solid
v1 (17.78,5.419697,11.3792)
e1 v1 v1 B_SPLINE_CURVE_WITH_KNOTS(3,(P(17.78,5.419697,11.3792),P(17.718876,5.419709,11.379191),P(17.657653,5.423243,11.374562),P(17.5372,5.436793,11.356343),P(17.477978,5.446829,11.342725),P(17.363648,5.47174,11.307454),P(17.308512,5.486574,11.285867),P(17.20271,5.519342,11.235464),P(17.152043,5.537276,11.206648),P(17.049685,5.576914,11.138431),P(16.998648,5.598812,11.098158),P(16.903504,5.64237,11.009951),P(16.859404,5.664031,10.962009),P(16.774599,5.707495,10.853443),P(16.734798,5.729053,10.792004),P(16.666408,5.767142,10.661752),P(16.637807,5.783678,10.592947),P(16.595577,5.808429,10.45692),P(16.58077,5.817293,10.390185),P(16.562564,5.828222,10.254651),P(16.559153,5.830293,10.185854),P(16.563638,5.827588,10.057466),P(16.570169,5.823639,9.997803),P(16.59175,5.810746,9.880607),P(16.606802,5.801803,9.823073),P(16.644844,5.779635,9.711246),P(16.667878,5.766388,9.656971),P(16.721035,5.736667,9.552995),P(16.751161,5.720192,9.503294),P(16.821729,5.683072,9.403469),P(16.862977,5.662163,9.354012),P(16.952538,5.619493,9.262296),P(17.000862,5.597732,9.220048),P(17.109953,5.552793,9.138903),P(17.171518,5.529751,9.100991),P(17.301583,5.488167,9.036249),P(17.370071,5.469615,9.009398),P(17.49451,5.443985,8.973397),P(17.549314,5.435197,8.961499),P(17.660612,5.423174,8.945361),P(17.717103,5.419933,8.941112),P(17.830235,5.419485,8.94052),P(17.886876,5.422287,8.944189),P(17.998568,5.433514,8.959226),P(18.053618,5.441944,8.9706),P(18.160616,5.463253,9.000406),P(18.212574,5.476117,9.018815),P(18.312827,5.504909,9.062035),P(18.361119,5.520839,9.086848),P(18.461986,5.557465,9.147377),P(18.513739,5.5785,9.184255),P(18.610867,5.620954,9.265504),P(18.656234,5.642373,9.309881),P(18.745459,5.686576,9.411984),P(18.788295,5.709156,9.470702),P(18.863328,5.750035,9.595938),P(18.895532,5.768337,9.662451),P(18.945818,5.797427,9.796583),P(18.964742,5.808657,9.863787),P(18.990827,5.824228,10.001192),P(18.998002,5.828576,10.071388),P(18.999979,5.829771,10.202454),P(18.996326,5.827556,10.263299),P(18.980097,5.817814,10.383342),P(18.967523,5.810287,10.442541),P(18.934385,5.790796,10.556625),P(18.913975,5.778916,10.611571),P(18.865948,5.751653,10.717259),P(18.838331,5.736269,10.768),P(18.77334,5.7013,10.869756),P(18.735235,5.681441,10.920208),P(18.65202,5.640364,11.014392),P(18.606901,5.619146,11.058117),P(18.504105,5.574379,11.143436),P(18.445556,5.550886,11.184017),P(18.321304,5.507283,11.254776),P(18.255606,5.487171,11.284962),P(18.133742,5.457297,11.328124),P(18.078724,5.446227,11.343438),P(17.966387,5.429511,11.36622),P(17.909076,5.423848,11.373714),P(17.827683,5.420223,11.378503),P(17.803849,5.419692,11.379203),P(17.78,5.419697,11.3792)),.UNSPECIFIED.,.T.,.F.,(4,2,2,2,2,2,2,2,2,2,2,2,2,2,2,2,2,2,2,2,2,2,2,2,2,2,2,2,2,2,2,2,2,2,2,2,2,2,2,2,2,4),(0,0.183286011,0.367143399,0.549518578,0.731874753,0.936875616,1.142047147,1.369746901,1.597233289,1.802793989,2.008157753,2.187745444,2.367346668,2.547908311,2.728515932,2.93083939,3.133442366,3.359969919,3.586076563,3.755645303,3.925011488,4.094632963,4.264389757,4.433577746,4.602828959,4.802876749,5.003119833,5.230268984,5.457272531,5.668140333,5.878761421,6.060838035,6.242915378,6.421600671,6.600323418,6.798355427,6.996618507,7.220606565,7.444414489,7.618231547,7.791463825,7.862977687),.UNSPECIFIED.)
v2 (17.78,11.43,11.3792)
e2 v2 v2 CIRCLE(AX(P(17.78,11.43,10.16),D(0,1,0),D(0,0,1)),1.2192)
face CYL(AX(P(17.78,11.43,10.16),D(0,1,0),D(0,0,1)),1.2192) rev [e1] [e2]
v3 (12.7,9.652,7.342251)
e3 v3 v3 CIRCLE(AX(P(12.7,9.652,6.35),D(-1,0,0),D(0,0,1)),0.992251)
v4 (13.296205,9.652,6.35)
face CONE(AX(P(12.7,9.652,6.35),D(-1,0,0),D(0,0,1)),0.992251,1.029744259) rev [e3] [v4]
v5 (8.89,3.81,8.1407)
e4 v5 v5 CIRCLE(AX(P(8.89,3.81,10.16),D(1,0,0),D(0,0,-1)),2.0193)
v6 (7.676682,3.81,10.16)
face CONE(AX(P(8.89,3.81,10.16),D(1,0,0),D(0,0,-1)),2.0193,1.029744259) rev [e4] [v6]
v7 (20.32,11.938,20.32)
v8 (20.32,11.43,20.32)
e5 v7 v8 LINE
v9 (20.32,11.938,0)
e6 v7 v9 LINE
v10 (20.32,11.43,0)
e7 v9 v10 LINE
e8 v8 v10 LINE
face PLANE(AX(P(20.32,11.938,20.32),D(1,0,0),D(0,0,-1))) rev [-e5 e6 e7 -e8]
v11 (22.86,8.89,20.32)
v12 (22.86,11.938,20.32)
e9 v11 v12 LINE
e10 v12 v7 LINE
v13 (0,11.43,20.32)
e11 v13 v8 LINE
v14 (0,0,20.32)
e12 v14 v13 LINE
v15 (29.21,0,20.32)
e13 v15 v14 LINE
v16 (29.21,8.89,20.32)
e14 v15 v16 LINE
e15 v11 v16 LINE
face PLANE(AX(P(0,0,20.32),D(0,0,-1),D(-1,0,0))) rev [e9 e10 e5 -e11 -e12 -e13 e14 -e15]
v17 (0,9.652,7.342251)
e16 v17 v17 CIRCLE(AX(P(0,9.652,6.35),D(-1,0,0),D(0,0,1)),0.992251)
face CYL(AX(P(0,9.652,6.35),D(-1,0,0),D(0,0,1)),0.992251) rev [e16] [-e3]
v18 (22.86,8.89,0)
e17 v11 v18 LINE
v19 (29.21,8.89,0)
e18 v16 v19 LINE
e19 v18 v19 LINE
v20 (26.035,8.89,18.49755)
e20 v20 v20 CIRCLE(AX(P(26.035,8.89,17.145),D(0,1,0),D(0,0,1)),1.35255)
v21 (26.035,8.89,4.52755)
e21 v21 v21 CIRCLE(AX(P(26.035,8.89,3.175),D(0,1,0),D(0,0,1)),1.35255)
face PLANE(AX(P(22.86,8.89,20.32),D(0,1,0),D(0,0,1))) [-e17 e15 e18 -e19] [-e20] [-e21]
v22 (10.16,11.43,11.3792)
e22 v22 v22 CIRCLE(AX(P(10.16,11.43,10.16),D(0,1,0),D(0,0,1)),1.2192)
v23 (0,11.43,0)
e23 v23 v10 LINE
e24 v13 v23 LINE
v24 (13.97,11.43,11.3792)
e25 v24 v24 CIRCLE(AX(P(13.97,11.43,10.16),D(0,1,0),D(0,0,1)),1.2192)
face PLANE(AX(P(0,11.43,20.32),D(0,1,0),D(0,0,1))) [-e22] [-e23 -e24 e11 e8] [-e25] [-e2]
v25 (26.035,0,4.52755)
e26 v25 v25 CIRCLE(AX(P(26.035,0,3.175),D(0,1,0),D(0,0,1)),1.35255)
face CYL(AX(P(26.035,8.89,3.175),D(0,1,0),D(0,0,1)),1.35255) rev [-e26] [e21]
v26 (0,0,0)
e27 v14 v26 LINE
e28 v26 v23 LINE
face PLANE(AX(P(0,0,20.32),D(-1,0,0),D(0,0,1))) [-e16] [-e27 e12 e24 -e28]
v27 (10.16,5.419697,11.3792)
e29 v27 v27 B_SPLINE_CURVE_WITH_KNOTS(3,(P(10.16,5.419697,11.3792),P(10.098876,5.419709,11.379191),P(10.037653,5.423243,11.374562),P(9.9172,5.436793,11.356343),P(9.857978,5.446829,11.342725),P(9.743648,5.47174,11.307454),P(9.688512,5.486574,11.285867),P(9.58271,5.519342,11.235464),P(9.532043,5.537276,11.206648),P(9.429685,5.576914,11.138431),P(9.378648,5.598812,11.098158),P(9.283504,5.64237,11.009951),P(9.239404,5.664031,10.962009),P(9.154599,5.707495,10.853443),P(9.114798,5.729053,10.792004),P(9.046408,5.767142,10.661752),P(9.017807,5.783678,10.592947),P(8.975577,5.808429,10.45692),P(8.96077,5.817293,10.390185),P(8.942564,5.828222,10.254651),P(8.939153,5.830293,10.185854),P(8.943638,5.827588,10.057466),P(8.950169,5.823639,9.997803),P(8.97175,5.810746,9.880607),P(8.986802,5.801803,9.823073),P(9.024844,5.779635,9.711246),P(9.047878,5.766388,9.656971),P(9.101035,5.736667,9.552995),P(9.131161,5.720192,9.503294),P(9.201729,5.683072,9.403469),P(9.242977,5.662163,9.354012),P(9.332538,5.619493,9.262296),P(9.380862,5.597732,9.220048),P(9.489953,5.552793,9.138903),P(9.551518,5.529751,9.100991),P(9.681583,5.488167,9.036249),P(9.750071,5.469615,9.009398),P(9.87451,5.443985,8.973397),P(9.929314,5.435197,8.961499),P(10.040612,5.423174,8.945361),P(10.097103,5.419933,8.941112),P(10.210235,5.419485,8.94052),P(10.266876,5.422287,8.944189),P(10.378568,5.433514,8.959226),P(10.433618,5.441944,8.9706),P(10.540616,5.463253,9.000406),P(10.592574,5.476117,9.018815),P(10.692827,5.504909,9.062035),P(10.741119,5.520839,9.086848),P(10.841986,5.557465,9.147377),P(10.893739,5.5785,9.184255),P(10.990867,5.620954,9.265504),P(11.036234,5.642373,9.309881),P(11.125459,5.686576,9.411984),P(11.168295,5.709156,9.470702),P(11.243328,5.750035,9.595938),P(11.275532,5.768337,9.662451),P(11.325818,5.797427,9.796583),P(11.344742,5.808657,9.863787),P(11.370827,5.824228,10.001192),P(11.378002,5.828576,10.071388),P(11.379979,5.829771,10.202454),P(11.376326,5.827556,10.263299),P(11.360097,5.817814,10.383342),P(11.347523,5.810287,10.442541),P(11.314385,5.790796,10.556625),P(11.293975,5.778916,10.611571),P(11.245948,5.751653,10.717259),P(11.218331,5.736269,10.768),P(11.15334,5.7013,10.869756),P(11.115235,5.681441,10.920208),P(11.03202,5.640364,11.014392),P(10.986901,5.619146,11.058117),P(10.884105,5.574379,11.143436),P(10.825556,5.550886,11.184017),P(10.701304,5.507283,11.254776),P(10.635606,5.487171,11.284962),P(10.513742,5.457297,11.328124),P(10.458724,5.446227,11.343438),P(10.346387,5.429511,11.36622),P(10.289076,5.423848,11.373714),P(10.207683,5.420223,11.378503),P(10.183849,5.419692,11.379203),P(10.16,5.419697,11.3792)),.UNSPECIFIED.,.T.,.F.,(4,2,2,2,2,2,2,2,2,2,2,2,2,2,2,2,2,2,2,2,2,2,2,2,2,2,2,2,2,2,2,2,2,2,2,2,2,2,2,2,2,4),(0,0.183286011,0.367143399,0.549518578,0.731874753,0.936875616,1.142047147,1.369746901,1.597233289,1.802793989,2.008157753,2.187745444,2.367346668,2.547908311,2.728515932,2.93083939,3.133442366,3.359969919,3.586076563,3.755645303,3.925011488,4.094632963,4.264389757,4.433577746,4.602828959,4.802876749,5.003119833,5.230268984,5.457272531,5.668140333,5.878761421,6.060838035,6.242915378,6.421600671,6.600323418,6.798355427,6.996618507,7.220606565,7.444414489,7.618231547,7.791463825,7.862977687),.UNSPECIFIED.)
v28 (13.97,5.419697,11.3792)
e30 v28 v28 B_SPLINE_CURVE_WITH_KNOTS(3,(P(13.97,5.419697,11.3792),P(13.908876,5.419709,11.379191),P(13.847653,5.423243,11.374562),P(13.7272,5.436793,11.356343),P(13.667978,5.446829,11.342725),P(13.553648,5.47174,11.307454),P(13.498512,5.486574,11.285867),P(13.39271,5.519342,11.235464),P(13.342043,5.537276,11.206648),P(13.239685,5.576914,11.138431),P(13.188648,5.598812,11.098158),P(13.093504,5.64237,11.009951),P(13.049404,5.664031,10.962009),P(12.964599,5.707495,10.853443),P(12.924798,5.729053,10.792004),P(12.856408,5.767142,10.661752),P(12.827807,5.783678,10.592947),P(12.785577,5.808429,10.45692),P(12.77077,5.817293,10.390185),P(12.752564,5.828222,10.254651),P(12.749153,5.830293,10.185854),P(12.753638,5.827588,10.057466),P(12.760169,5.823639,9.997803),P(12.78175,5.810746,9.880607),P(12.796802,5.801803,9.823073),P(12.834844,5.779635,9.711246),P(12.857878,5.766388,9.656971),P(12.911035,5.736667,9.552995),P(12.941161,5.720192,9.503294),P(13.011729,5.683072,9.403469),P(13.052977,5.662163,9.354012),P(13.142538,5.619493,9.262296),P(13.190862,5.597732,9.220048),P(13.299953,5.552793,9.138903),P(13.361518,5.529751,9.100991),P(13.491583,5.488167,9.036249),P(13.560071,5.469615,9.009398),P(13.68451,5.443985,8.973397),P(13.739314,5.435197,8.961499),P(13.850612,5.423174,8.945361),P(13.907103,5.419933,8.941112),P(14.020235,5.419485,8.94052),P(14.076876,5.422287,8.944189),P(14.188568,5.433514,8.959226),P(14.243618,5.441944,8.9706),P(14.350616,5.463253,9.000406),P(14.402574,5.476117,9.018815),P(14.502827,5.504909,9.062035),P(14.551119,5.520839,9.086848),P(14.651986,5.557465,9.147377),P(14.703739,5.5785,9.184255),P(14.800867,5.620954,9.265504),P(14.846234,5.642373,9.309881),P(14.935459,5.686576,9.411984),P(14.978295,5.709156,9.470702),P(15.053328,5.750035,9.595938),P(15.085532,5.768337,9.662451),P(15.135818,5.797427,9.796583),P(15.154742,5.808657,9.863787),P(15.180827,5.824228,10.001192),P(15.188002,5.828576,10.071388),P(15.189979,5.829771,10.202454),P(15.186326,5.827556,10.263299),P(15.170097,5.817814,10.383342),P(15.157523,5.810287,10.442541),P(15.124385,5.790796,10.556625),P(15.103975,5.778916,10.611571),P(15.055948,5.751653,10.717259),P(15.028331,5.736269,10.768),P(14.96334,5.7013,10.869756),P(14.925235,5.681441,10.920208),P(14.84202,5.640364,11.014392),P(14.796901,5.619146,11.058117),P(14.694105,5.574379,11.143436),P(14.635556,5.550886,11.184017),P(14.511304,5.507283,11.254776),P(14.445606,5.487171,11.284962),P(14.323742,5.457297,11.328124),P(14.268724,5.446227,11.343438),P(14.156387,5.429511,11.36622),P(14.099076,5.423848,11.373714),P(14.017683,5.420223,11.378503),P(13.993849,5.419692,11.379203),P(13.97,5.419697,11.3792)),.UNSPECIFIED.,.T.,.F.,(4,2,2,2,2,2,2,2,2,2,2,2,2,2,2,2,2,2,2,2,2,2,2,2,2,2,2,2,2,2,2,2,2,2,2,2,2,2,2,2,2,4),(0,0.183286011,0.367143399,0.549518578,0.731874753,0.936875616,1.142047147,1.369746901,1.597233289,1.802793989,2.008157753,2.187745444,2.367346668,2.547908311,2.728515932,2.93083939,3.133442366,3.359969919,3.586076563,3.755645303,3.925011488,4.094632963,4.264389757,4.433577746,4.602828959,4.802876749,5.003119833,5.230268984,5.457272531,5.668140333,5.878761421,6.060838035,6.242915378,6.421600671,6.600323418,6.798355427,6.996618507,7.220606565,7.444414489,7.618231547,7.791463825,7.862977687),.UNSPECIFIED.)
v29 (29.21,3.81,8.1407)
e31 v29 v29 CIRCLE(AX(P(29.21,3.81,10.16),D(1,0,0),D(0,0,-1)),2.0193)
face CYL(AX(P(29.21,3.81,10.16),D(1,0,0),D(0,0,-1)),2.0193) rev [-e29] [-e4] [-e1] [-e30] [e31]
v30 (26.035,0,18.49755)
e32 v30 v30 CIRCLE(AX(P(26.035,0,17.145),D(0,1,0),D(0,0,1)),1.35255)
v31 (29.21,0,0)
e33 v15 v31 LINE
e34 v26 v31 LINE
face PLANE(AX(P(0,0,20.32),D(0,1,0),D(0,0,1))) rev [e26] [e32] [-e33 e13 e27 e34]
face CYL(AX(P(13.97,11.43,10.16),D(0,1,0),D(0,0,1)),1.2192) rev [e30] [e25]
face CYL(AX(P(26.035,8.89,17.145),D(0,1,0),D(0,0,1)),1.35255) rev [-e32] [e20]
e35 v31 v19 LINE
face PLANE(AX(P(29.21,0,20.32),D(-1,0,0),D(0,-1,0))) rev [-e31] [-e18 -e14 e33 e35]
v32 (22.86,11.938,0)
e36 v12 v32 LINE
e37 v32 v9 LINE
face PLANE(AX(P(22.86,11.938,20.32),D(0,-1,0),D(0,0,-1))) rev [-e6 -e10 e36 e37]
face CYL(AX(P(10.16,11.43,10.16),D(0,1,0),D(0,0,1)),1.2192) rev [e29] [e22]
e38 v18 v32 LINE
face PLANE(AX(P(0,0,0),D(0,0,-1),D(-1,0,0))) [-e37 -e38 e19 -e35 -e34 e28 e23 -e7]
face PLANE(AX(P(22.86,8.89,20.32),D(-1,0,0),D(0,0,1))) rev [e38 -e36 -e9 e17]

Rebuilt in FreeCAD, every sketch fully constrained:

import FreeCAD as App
import Part
import Sketcher
Q = App.Units.Quantity


def add_polygon(sketch, points):
    """Adds a closed chain of lines whose ends are joined by coincident constraints."""
    first, n = sketch.GeometryCount, len(points)
    for a, b in zip(points, points[1:] + points[:1]):
        sketch.addGeometry(Part.LineSegment(App.Vector(*a, 0), App.Vector(*b, 0)), False)
    for i in range(n):
        sketch.addConstraint(Sketcher.Constraint("Coincident", first + i, 2, first + (i + 1) % n, 1))

doc = App.newDocument("Part")
body = doc.addObject("PartDesign::Body", "Body")

# Sketch on XY plane
sketch1 = doc.addObject("Sketcher::SketchObject", "Sketch")
body.addObject(sketch1)
sketch1.AttachmentSupport = (doc.XY_Plane, [""])
sketch1.MapMode = "FlatFace"
add_polygon(sketch1, [(0, 0), (29.2, 0), (29.2, 8.9), (22.9, 8.9), (22.9, 11.9), (20.3, 11.9), (20.3, 11.4), (0, 11.4)])  # lines 0-7
sketch1.addConstraint([
    Sketcher.Constraint("Horizontal", 0),
    Sketcher.Constraint("Vertical", 1),
    Sketcher.Constraint("Horizontal", 2),
    Sketcher.Constraint("Vertical", 3),
    Sketcher.Constraint("Horizontal", 4),
    Sketcher.Constraint("Vertical", 5),
    Sketcher.Constraint("Horizontal", 6),
    Sketcher.Constraint("Vertical", 7),
    Sketcher.Constraint("Coincident", 7, 2, -1, 1),
    Sketcher.Constraint("DistanceX", 4, 2, 4, 1, Q("0.1 in")),
    Sketcher.Constraint("DistanceX", 6, 2, 6, 1, Q("0.8 in")),
    Sketcher.Constraint("DistanceX", 0, 1, 0, 2, Q("1.15 in")),
    Sketcher.Constraint("DistanceY", 1, 1, 1, 2, Q("0.35 in")),
    Sketcher.Constraint("DistanceY", 3, 1, 3, 2, Q("0.12 in")),
    Sketcher.Constraint("DistanceY", 5, 2, 5, 1, Q("0.02 in")),
])
pad1 = doc.addObject("PartDesign::Pad", "Pad")
body.addObject(pad1)
pad1.Profile = sketch1
pad1.Length = Q("0.8 in")

# Sketch on XZ plane
sketch2 = doc.addObject("Sketcher::SketchObject", "Sketch001")
body.addObject(sketch2)
sketch2.AttachmentSupport = (doc.XZ_Plane, [""])
sketch2.MapMode = "FlatFace"
sketch2.AttachmentOffset = App.Placement(App.Vector(0, 0, -0.45 * 25.4), App.Rotation())
sketch2.addGeometry([
    Part.Circle(App.Vector(17.8, 10.2, 0), App.Vector(0, 0, 1), 1.2),
    Part.Circle(App.Vector(14, 10.2, 0), App.Vector(0, 0, 1), 1.2),
    Part.Circle(App.Vector(10.2, 10.2, 0), App.Vector(0, 0, 1), 1.2),
], False)
sketch2.addConstraint([
    Sketcher.Constraint("Equal", 0, 1),
    Sketcher.Constraint("Equal", 1, 2),
    Sketcher.Constraint("Horizontal", 0, 3, 1, 3),
    Sketcher.Constraint("Horizontal", 1, 3, 2, 3),
    Sketcher.Constraint("Diameter", 0, Q("0.096 in")),
    Sketcher.Constraint("DistanceX", -1, 1, 0, 3, Q("0.7 in")),
    Sketcher.Constraint("DistanceY", -1, 1, 0, 3, Q("0.4 in")),
    Sketcher.Constraint("DistanceX", -1, 1, 2, 3, Q("0.4 in")),
    Sketcher.Constraint("DistanceX", -1, 1, 1, 3, Q("0.55 in")),
])
doc.recompute()
hole = doc.addObject("PartDesign::Hole", "Hole")
body.addObject(hole)
hole.Profile = sketch2
hole.ThreadType = "None"
hole.Diameter = Q("0.096 in")
hole.DepthType = "Dimension"
hole.Depth = Q("0.3 in")
hole.DrillPoint = "Angled"
hole.DrillPointAngle = 118
hole.Reversed = True

# Sketch on YZ plane
sketch3 = doc.addObject("Sketcher::SketchObject", "Sketch002")
body.addObject(sketch3)
sketch3.AttachmentSupport = (doc.YZ_Plane, [""])
sketch3.MapMode = "FlatFace"
sketch3.AttachmentOffset = App.Placement(App.Vector(0, 0, 1.15 * 25.4), App.Rotation())
sketch3.addGeometry(Part.Circle(App.Vector(3.8, 10.2, 0), App.Vector(0, 0, 1), 2), False)
sketch3.addConstraint([
    Sketcher.Constraint("Diameter", 0, Q("0.159 in")),
    Sketcher.Constraint("DistanceY", -1, 1, 0, 3, Q("0.4 in")),
    Sketcher.Constraint("DistanceX", -1, 1, 0, 3, Q("0.15 in")),
])
doc.recompute()
hole2 = doc.addObject("PartDesign::Hole", "Hole001")
body.addObject(hole2)
hole2.Profile = sketch3
hole2.ThreadType = "None"
hole2.Diameter = Q("0.159 in")
hole2.DepthType = "Dimension"
hole2.Depth = Q("0.8 in")
hole2.DrillPoint = "Angled"
hole2.DrillPointAngle = 118

# Sketch on YZ plane
sketch4 = doc.addObject("Sketcher::SketchObject", "Sketch003")
body.addObject(sketch4)
sketch4.AttachmentSupport = (doc.YZ_Plane, [""])
sketch4.MapMode = "FlatFace"
sketch4.addGeometry(Part.Circle(App.Vector(9.7, 6.3, 0), App.Vector(0, 0, 1), 1), False)
sketch4.addConstraint([
    Sketcher.Constraint("DistanceX", -1, 1, 0, 3, Q("0.38 in")),
    Sketcher.Constraint("DistanceY", -1, 1, 0, 3, Q("0.25 in")),
    Sketcher.Constraint("Diameter", 0, Q("1.984502 mm")),
])
doc.recompute()
hole3 = doc.addObject("PartDesign::Hole", "Hole002")
body.addObject(hole3)
hole3.Profile = sketch4
hole3.ThreadType = "None"
hole3.Diameter = 1.984502
hole3.DepthType = "Dimension"
hole3.Depth = Q("0.5 in")
hole3.DrillPoint = "Angled"
hole3.DrillPointAngle = 118
hole3.Reversed = True

# Sketch on XZ plane
sketch5 = doc.addObject("Sketcher::SketchObject", "Sketch004")
body.addObject(sketch5)
sketch5.AttachmentSupport = (doc.XZ_Plane, [""])
sketch5.MapMode = "FlatFace"
sketch5.AttachmentOffset = App.Placement(App.Vector(0, 0, -0.35 * 25.4), App.Rotation())
sketch5.addGeometry([
    Part.Circle(App.Vector(26, 17.1, 0), App.Vector(0, 0, 1), 1.4),
    Part.Circle(App.Vector(26, 3.2, 0), App.Vector(0, 0, 1), 1.4),
], False)
sketch5.addConstraint([
    Sketcher.Constraint("Equal", 0, 1),
    Sketcher.Constraint("Vertical", 0, 3, 1, 3),
    Sketcher.Constraint("Diameter", 0, Q("0.1065 in")),
    Sketcher.Constraint("DistanceY", 1, 3, 0, 3, Q("0.55 in")),
    Sketcher.Constraint("DistanceX", -1, 1, 0, 3, Q("1.025 in")),
    Sketcher.Constraint("DistanceY", -1, 1, 0, 3, Q("0.675 in")),
])
doc.recompute()
hole4 = doc.addObject("PartDesign::Hole", "Hole003")
body.addObject(hole4)
hole4.Profile = sketch5
hole4.ThreadType = "None"
hole4.Diameter = Q("0.1065 in")
hole4.DepthType = "ThroughAll"
hole4.Reversed = True

doc.recompute()
